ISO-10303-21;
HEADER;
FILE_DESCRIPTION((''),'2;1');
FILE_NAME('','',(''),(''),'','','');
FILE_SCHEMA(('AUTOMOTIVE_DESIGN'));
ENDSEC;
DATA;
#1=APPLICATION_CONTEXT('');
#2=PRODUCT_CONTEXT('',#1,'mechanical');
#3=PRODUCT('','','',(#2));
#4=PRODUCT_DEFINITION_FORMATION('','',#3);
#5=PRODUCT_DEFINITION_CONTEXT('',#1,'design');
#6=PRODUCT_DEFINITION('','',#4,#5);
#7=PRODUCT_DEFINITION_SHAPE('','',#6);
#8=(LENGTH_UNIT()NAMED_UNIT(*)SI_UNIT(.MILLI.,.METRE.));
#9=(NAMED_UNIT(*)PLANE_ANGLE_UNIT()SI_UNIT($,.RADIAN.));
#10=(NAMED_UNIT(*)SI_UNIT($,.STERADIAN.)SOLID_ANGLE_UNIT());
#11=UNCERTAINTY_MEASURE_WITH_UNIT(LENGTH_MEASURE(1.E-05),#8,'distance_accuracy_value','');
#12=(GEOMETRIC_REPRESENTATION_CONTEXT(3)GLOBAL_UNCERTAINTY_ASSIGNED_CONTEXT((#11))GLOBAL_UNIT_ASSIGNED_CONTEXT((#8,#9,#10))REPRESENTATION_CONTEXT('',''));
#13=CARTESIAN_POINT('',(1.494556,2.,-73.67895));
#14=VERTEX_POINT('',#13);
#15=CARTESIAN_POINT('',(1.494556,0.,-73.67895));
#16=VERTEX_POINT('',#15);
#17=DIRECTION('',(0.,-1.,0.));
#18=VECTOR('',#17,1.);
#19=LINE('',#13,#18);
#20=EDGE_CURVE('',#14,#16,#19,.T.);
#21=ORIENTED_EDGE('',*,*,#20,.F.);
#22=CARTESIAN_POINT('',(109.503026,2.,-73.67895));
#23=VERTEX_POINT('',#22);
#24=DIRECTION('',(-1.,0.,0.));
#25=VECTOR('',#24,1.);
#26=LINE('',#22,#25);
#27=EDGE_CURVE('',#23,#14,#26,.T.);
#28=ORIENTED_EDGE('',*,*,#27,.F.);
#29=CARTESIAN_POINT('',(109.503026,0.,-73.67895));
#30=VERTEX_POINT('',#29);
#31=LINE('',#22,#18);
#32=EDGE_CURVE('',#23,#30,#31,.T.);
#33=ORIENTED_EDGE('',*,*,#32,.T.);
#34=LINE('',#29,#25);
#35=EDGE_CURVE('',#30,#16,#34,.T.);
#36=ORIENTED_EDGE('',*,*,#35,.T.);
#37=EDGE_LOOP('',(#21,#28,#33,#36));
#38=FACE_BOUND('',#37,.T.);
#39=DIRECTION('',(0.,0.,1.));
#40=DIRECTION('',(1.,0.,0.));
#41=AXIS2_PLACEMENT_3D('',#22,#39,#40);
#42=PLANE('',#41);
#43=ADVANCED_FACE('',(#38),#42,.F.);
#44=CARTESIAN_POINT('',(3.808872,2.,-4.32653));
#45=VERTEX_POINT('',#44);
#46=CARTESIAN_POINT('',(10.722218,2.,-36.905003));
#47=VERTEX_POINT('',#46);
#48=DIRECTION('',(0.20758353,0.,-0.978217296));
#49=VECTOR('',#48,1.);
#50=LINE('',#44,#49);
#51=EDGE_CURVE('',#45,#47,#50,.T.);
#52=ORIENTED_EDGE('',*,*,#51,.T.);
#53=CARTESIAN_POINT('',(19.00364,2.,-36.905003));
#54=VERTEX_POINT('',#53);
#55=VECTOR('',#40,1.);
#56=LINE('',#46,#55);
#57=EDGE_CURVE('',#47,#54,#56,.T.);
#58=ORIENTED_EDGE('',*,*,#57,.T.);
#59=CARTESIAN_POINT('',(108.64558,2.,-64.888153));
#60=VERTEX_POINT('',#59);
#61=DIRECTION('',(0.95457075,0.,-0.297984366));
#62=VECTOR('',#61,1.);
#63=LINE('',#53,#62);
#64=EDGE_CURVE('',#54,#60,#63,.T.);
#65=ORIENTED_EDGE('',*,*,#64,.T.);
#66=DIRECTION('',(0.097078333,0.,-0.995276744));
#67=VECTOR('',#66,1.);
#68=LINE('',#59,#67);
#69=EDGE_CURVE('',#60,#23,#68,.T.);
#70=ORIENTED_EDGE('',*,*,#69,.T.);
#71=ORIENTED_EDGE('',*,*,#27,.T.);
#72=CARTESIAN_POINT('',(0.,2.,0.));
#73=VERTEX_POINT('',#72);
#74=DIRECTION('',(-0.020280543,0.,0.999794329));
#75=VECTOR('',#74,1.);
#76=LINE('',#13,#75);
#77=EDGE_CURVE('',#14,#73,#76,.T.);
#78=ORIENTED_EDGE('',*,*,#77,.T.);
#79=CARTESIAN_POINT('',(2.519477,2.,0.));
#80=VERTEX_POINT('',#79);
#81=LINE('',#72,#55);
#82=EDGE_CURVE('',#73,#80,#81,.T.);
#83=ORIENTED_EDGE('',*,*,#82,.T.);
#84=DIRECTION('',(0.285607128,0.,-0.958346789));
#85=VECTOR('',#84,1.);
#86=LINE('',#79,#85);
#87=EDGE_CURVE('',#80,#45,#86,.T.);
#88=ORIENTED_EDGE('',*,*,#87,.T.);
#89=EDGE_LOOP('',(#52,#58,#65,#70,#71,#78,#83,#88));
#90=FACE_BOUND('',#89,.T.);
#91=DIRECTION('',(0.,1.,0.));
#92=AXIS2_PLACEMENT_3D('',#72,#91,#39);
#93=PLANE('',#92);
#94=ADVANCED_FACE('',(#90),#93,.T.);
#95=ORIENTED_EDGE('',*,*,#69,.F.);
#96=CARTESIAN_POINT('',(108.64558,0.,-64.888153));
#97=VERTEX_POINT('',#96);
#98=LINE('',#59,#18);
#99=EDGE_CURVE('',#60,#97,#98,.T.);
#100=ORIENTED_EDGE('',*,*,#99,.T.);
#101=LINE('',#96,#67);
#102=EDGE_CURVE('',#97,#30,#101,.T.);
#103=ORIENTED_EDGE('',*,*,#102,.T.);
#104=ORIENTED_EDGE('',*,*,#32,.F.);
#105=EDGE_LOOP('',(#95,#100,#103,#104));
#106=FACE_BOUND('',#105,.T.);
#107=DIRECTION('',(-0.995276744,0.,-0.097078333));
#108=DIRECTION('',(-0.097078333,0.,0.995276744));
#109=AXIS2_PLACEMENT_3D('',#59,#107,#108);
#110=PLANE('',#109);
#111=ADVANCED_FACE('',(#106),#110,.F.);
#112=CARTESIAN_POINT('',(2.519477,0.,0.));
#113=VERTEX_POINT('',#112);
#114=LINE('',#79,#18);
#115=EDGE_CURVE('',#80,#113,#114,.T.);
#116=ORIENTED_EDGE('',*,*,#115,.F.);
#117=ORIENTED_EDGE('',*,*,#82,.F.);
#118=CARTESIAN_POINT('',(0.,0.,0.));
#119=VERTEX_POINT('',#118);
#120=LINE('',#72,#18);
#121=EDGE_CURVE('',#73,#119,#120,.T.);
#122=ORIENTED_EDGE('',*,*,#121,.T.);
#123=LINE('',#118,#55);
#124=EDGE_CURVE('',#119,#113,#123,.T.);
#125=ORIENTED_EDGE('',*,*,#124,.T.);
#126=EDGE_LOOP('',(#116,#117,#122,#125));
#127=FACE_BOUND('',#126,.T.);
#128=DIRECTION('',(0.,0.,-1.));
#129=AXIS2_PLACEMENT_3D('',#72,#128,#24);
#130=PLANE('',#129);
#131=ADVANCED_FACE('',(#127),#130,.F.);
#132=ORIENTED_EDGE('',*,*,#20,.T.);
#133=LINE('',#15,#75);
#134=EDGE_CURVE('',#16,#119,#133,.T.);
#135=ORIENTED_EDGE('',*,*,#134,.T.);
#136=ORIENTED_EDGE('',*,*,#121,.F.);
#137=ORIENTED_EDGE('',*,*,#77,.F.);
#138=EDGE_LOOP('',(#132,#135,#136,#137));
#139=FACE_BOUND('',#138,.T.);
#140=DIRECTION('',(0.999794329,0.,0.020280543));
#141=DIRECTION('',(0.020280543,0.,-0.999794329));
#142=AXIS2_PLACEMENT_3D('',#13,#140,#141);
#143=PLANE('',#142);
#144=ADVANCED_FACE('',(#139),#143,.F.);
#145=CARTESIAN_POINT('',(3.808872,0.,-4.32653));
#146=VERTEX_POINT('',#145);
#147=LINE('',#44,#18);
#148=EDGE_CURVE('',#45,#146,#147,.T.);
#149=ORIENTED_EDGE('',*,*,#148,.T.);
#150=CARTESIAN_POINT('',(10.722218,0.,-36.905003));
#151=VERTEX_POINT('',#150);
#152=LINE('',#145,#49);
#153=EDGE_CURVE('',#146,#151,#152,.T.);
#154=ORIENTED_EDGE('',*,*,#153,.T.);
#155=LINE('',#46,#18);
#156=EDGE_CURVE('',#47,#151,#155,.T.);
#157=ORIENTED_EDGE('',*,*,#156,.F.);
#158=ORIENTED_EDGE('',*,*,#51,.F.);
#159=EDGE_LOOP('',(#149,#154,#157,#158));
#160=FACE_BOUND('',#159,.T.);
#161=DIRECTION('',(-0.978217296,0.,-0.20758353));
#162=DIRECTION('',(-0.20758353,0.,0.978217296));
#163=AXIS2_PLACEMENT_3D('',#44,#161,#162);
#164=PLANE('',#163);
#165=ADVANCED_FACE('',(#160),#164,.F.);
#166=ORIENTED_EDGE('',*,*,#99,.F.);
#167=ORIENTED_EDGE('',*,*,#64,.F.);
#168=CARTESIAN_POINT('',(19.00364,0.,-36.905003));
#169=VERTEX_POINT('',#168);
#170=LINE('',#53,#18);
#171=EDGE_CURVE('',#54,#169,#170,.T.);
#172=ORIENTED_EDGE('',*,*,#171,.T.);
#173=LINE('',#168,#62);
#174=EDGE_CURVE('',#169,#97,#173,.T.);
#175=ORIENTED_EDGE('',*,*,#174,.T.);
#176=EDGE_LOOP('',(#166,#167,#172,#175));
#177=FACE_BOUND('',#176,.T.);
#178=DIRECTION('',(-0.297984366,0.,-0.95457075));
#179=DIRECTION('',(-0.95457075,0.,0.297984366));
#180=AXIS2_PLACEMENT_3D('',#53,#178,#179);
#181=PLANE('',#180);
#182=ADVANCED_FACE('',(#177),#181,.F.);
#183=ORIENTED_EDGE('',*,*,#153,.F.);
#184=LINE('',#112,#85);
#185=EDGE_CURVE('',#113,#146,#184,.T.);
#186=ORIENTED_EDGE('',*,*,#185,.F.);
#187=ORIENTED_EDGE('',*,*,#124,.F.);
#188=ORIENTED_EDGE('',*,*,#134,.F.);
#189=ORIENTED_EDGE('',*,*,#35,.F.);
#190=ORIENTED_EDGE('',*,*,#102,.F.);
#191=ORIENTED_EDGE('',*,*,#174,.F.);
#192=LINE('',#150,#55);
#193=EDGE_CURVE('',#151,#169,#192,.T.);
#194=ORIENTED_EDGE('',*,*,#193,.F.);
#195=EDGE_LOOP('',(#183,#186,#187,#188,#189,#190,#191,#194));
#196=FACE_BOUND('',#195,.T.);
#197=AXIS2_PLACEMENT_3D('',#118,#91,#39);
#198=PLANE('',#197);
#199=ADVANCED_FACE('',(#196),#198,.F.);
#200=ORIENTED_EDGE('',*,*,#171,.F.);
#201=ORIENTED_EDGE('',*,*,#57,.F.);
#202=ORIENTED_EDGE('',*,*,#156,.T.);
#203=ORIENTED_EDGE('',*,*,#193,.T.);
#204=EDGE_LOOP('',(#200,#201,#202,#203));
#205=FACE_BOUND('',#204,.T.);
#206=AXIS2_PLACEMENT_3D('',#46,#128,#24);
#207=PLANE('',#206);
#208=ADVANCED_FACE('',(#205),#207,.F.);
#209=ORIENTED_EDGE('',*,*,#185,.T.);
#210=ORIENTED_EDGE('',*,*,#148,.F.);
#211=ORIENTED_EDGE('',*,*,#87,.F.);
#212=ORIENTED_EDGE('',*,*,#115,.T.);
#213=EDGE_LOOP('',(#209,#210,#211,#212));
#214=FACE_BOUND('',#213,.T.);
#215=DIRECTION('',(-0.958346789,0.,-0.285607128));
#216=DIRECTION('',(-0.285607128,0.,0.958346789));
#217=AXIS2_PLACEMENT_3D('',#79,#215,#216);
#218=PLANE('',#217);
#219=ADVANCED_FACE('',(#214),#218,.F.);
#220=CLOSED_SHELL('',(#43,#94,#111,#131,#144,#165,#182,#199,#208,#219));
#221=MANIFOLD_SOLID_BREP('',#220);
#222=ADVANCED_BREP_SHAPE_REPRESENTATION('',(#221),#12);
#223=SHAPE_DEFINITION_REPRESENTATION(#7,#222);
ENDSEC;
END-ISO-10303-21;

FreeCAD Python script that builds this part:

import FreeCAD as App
import Part
import Sketcher
from FreeCAD import Vector
Q = App.Units.Quantity

doc = App.newDocument("Part")
params = doc.addObject("Spreadsheet::Sheet", "Params")
for row, (alias, value) in enumerate([
    ("pad1_length", "2 mm"),
], start=1):
    params.set(f"A{row}", alias)
    params.set(f"B{row}", "=" + value)
    params.setAlias(f"B{row}", alias)

body = doc.addObject("PartDesign::Body", "Body")

sketch1 = doc.addObject("Sketcher::SketchObject", "Sketch")
body.addObject(sketch1)
sketch1.AttachmentSupport = (doc.XZ_Plane, [""])
sketch1.MapMode = "FlatFace"
sketch1.addGeometry([
    Part.LineSegment(Vector(1.494556, -73.67895, 0), Vector(0, 0, 0)),
    Part.LineSegment(Vector(0, 0, 0), Vector(2.519477, 0, 0)),
    Part.LineSegment(Vector(2.519477, 0, 0), Vector(3.808872, -4.32653, 0)),
    Part.LineSegment(Vector(3.808872, -4.32653, 0), Vector(10.722218, -36.905003, 0)),
    Part.LineSegment(Vector(10.722218, -36.905003, 0), Vector(19.00364, -36.905003, 0)),
    Part.LineSegment(Vector(19.00364, -36.905003, 0), Vector(108.64558, -64.888153, 0)),
    Part.LineSegment(Vector(108.64558, -64.888153, 0), Vector(109.503026, -73.67895, 0)),
    Part.LineSegment(Vector(109.503026, -73.67895, 0), Vector(1.494556, -73.67895, 0)),
], False)
sketch1.addConstraint([
    Sketcher.Constraint("Coincident", 0, 2, 1, 1),
    Sketcher.Constraint("Coincident", 1, 2, 2, 1),
    Sketcher.Constraint("Coincident", 2, 2, 3, 1),
    Sketcher.Constraint("Coincident", 3, 2, 4, 1),
    Sketcher.Constraint("Coincident", 4, 2, 5, 1),
    Sketcher.Constraint("Coincident", 5, 2, 6, 1),
    Sketcher.Constraint("Coincident", 6, 2, 7, 1),
    Sketcher.Constraint("Coincident", 7, 2, 0, 1),
    Sketcher.Constraint("Horizontal", 1),
    Sketcher.Constraint("Horizontal", 4),
    Sketcher.Constraint("Horizontal", 7),
    Sketcher.Constraint("Coincident", 0, 2, -1, 1),
    Sketcher.Constraint("DistanceX", 4, 1, 4, 2, Q("8.281422 mm")),
    Sketcher.Constraint("DistanceX", 7, 2, 7, 1, Q("108.00847 mm")),
    Sketcher.Constraint("DistanceX", 1, 1, 1, 2, Q("2.519477 mm")),
    Sketcher.Constraint("DistanceY", 2, 2, -1, 1, Q("4.32653 mm")),
    Sketcher.Constraint("DistanceX", -1, 1, 3, 2, Q("10.722218 mm")),
    Sketcher.Constraint("DistanceX", -1, 1, 5, 2, Q("108.64558 mm")),
    Sketcher.Constraint("DistanceY", 6, 2, -1, 1, Q("73.67895 mm")),
    Sketcher.Constraint("DistanceY", 5, 2, 4, 2, Q("27.98315 mm")),
    Sketcher.Constraint("DistanceX", 2, 2, 5, 2, Q("104.836708 mm")),
    Sketcher.Constraint("DistanceX", 3, 2, 6, 2, Q("98.780808 mm")),
    Sketcher.Constraint("Distance", 3, Q("33.303923 mm")),
])
pad1 = doc.addObject("PartDesign::Pad", "Pad")
body.addObject(pad1)
pad1.Profile = sketch1
pad1.setExpression("Length", "Params.pad1_length")
pad1.Reversed = True

doc.recompute()
